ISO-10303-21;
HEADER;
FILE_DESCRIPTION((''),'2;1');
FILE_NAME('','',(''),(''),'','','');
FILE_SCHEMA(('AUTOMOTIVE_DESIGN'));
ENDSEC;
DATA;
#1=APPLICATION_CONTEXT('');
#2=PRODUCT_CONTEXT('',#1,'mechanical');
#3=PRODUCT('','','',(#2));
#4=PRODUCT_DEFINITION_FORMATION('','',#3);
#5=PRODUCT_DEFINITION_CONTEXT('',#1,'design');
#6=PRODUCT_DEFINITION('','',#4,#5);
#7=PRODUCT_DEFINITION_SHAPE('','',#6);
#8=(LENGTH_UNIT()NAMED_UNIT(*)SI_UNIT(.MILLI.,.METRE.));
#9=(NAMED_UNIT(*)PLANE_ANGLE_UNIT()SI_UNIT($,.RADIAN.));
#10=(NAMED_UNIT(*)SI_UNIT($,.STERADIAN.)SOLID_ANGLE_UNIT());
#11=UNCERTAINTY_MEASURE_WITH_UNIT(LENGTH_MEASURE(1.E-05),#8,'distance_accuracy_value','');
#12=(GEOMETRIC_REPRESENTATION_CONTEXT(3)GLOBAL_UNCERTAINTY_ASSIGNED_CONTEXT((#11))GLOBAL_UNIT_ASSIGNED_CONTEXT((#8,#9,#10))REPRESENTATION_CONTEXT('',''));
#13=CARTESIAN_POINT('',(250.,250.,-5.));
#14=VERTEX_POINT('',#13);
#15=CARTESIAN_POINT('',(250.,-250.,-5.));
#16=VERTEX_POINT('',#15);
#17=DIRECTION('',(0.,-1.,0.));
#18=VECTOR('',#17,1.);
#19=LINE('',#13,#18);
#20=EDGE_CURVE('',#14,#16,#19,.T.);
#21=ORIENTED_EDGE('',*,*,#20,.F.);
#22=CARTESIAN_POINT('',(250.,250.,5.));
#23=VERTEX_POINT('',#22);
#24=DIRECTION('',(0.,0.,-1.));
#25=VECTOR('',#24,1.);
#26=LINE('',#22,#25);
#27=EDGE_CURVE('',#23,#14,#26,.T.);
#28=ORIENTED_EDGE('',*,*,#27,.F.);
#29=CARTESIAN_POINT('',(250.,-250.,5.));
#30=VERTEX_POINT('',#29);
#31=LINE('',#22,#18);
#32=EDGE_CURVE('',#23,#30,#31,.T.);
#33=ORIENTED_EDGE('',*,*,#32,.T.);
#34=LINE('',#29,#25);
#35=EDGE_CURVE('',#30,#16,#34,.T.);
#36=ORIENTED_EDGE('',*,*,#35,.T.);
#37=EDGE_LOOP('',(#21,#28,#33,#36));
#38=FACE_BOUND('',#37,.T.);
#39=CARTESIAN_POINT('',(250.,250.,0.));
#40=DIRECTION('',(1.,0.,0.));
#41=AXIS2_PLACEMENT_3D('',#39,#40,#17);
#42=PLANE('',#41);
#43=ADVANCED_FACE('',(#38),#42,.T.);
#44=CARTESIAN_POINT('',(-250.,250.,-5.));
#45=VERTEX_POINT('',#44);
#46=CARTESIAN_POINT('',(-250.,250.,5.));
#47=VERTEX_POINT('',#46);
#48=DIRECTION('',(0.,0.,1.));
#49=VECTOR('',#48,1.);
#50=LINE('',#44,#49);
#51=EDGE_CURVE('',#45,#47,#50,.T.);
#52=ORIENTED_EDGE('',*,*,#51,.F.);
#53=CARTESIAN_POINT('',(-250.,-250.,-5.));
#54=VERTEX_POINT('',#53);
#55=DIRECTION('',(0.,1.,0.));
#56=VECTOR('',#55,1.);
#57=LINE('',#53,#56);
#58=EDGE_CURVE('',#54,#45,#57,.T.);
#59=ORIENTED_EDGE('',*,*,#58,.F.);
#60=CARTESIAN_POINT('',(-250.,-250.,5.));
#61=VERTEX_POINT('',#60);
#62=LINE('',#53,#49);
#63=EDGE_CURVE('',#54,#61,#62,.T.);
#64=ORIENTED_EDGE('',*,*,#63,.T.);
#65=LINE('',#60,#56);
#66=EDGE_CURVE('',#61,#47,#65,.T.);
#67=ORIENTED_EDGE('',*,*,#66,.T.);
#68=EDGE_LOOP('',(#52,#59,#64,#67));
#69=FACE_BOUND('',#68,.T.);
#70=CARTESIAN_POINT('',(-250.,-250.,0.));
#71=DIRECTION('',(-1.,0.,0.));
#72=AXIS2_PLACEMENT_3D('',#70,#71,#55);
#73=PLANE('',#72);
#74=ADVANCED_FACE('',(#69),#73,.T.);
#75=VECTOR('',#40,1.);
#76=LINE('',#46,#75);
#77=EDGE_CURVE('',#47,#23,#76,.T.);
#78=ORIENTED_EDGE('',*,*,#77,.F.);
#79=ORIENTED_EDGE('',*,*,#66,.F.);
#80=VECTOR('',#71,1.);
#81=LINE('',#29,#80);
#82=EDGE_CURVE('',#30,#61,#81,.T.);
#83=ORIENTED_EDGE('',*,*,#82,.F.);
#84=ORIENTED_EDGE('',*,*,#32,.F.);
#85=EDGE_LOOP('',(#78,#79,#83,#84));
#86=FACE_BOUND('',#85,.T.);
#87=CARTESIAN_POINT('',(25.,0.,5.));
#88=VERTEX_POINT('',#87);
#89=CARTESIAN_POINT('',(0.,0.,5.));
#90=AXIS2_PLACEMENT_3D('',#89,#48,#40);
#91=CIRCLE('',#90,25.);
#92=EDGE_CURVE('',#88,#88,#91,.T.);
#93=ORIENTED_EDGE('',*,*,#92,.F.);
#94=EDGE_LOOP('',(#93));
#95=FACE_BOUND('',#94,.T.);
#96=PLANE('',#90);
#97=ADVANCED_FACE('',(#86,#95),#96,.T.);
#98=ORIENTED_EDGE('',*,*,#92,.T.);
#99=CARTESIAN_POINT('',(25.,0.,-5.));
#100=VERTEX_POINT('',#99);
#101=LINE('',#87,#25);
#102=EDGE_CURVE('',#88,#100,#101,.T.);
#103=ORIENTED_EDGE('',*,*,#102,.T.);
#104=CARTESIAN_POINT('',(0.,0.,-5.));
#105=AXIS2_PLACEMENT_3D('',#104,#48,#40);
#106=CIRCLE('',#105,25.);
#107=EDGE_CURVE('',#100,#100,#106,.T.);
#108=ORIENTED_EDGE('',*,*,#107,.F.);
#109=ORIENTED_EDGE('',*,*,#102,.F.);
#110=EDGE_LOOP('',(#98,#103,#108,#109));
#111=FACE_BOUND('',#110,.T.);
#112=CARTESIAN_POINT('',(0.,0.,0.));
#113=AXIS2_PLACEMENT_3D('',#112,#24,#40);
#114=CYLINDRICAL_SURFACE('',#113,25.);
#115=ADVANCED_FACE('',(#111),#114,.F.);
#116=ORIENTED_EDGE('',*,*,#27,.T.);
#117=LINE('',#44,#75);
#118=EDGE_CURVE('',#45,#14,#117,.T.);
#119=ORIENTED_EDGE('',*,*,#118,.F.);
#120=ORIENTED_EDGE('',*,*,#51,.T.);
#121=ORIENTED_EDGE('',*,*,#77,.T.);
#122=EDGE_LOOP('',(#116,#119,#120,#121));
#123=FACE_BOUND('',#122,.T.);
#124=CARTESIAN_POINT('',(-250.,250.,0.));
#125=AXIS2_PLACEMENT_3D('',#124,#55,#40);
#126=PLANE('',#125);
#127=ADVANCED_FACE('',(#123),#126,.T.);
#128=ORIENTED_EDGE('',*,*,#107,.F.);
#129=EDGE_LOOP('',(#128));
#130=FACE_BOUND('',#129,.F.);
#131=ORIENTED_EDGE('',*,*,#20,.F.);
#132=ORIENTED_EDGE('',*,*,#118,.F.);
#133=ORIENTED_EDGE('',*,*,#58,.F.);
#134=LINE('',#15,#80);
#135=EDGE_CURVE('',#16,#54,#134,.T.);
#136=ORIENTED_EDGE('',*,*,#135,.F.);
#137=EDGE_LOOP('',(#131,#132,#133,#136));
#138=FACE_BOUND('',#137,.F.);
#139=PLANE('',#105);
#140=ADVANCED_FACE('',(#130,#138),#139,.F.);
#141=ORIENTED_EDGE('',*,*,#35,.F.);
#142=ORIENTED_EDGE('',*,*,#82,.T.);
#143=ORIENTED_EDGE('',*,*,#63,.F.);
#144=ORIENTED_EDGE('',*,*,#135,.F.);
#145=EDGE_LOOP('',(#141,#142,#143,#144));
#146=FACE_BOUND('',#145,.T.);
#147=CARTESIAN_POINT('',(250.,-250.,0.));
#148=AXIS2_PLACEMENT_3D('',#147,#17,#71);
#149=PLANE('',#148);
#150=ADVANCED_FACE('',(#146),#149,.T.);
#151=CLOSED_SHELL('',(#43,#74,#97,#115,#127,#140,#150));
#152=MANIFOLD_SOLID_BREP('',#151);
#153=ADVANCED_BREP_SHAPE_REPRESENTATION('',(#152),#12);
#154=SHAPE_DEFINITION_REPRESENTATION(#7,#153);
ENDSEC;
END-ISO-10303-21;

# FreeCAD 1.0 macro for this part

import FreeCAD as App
import Part
import Sketcher
Q = App.Units.Quantity

doc = App.newDocument("Part")
body = doc.addObject("PartDesign::Body", "Body")

# Sketch on XY plane
sketch1 = body.newObject("Sketcher::SketchObject", "Sketch")
sketch1.AttachmentSupport = (doc.getObject("XY_Plane"), [""])
sketch1.MapMode = "FlatFace"
sketch1.addGeometry(Part.LineSegment(App.Vector(250, 250, 0), App.Vector(-250, 250, 0)), False)
sketch1.addGeometry(Part.LineSegment(App.Vector(-250, 250, 0), App.Vector(-250, -250, 0)), False)
sketch1.addGeometry(Part.LineSegment(App.Vector(-250, -250, 0), App.Vector(250, -250, 0)), False)
sketch1.addGeometry(Part.LineSegment(App.Vector(250, -250, 0), App.Vector(250, 250, 0)), False)
sketch1.addGeometry(Part.Circle(App.Vector(0, 0, 0), App.Vector(0, 0, 1), 25), False)
sketch1.addConstraint(Sketcher.Constraint("Coincident", 0, 2, 1, 1))
sketch1.addConstraint(Sketcher.Constraint("Coincident", 1, 2, 2, 1))
sketch1.addConstraint(Sketcher.Constraint("Coincident", 2, 2, 3, 1))
sketch1.addConstraint(Sketcher.Constraint("Coincident", 3, 2, 0, 1))
sketch1.addConstraint(Sketcher.Constraint("Horizontal", 0))
sketch1.addConstraint(Sketcher.Constraint("Vertical", 1))
sketch1.addConstraint(Sketcher.Constraint("Horizontal", 2))
sketch1.addConstraint(Sketcher.Constraint("Vertical", 3))
sketch1.addConstraint(Sketcher.Constraint("Coincident", 4, 3, -1, 1))
sketch1.addConstraint(Sketcher.Constraint("Symmetric", 0, 2, 2, 2, -1, 1))
sketch1.addConstraint(Sketcher.Constraint("Equal", 2, 1))
sketch1.addConstraint(Sketcher.Constraint("Diameter", 4, Q("50 mm")))
sketch1.addConstraint(Sketcher.Constraint("DistanceX", 0, 2, 0, 1, Q("500 mm")))
pad1 = body.newObject("PartDesign::Pad", "Pad")
pad1.Profile = sketch1
pad1.Length = 10
pad1.Midplane = True

doc.recompute()
